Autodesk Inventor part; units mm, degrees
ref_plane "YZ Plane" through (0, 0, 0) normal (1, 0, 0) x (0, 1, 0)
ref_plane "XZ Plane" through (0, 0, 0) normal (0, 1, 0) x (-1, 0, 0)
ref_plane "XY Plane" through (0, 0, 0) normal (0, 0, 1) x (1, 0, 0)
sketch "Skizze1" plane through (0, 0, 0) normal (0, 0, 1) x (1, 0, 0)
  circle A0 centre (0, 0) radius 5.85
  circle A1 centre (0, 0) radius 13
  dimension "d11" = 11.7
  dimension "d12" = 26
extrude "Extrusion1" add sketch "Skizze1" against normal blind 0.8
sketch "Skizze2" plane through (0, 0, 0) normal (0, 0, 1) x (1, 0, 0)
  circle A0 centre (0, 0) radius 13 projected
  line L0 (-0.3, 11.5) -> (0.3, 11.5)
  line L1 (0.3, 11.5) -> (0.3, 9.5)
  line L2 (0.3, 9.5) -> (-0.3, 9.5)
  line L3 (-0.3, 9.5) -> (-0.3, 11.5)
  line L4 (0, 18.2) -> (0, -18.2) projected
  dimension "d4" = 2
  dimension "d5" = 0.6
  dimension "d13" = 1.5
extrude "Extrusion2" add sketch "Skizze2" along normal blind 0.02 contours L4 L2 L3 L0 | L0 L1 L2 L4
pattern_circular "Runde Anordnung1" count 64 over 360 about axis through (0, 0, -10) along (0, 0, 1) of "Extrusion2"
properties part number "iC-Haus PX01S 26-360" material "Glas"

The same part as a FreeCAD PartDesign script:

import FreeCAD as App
import Part
import Sketcher

V = App.Vector
Q = App.Units.Quantity

doc = App.newDocument("Part")
params = doc.addObject("Spreadsheet::Sheet", "Params")
for row, (alias, value) in enumerate([
    ("sketch1_diameter", "26 mm"),
    ("sketch1_diameter2", "11.7 mm"),
    ("pad1_length", "0.8 mm"),
    ("sketch2_height", "2 mm"),
    ("sketch2_width", "0.6 mm"),
    ("pad2_length", "0.02 mm"),
], start=1):
    params.set(f"A{row}", alias)
    params.set(f"B{row}", "=" + value)
    params.setAlias(f"B{row}", alias)

body = doc.addObject("PartDesign::Body", "Body")

sketch1 = body.newObject("Sketcher::SketchObject", "Sketch")
sketch1.AttachmentSupport = (doc.getObject("XY_Plane"), [""])
sketch1.MapMode = "FlatFace"
sketch1.addGeometry(Part.Circle(V(0, 0, 0), V(0, 0, 1), 13), False)
sketch1.addGeometry(Part.Circle(V(0, 0, 0), V(0, 0, 1), 6), False)
sketch1.addConstraint(Sketcher.Constraint("Coincident", 0, 3, -1, 1))
sketch1.addConstraint(Sketcher.Constraint("Coincident", 1, 3, -1, 1))
sketch1.addConstraint(Sketcher.Constraint("Diameter", 0, Q("26 mm")))
sketch1.addConstraint(Sketcher.Constraint("Diameter", 1, Q("11.7 mm")))
sketch1.setExpression("Constraints[2]", "Params.sketch1_diameter")
sketch1.setExpression("Constraints[3]", "Params.sketch1_diameter2")
pad1 = body.newObject("PartDesign::Pad", "Pad")
pad1.Profile = sketch1
pad1.setExpression("Length", "Params.pad1_length")
pad1.Reversed = True

sketch2 = body.newObject("Sketcher::SketchObject", "Sketch001")
sketch2.AttachmentSupport = (doc.getObject("XY_Plane"), [""])
sketch2.MapMode = "FlatFace"
sketch2.addGeometry(Part.LineSegment(V(-0.3, 9.5, 0), V(0.3, 9.5, 0)), False)
sketch2.addGeometry(Part.LineSegment(V(0.3, 9.5, 0), V(0.3, 11.5, 0)), False)
sketch2.addGeometry(Part.LineSegment(V(0.3, 11.5, 0), V(-0.3, 11.5, 0)), False)
sketch2.addGeometry(Part.LineSegment(V(-0.3, 11.5, 0), V(-0.3, 9.5, 0)), False)
sketch2.addConstraint(Sketcher.Constraint("Coincident", 0, 2, 1, 1))
sketch2.addConstraint(Sketcher.Constraint("Coincident", 1, 2, 2, 1))
sketch2.addConstraint(Sketcher.Constraint("Coincident", 2, 2, 3, 1))
sketch2.addConstraint(Sketcher.Constraint("Coincident", 3, 2, 0, 1))
sketch2.addConstraint(Sketcher.Constraint("Horizontal", 0))
sketch2.addConstraint(Sketcher.Constraint("Vertical", 1))
sketch2.addConstraint(Sketcher.Constraint("Horizontal", 2))
sketch2.addConstraint(Sketcher.Constraint("Vertical", 3))
sketch2.addConstraint(Sketcher.Constraint("DistanceY", 1, 1, 1, 2, Q("2 mm")))
sketch2.addConstraint(Sketcher.Constraint("DistanceX", 0, 1, 0, 2, Q("0.6 mm")))
sketch2.addConstraint(Sketcher.Constraint("DistanceX", -1, 1, 0, 2, Q("0.3 mm")))
sketch2.addConstraint(Sketcher.Constraint("DistanceY", -1, 1, 0, 2, Q("9.5 mm")))
sketch2.setExpression("Constraints[8]", "Params.sketch2_height")
sketch2.setExpression("Constraints[9]", "Params.sketch2_width")
pad2 = body.newObject("PartDesign::Pad", "Pad001")
pad2.Profile = sketch2
pad2.setExpression("Length", "Params.pad2_length")
doc.recompute()

polarpattern = body.newObject("PartDesign::PolarPattern", "PolarPattern")
polarpattern.Originals = [pad2]
polarpattern.Axis = (doc.getObject("Z_Axis"), [""])
polarpattern.Angle = 360
polarpattern.Occurrences = 64
body.Tip = polarpattern

doc.recompute()
